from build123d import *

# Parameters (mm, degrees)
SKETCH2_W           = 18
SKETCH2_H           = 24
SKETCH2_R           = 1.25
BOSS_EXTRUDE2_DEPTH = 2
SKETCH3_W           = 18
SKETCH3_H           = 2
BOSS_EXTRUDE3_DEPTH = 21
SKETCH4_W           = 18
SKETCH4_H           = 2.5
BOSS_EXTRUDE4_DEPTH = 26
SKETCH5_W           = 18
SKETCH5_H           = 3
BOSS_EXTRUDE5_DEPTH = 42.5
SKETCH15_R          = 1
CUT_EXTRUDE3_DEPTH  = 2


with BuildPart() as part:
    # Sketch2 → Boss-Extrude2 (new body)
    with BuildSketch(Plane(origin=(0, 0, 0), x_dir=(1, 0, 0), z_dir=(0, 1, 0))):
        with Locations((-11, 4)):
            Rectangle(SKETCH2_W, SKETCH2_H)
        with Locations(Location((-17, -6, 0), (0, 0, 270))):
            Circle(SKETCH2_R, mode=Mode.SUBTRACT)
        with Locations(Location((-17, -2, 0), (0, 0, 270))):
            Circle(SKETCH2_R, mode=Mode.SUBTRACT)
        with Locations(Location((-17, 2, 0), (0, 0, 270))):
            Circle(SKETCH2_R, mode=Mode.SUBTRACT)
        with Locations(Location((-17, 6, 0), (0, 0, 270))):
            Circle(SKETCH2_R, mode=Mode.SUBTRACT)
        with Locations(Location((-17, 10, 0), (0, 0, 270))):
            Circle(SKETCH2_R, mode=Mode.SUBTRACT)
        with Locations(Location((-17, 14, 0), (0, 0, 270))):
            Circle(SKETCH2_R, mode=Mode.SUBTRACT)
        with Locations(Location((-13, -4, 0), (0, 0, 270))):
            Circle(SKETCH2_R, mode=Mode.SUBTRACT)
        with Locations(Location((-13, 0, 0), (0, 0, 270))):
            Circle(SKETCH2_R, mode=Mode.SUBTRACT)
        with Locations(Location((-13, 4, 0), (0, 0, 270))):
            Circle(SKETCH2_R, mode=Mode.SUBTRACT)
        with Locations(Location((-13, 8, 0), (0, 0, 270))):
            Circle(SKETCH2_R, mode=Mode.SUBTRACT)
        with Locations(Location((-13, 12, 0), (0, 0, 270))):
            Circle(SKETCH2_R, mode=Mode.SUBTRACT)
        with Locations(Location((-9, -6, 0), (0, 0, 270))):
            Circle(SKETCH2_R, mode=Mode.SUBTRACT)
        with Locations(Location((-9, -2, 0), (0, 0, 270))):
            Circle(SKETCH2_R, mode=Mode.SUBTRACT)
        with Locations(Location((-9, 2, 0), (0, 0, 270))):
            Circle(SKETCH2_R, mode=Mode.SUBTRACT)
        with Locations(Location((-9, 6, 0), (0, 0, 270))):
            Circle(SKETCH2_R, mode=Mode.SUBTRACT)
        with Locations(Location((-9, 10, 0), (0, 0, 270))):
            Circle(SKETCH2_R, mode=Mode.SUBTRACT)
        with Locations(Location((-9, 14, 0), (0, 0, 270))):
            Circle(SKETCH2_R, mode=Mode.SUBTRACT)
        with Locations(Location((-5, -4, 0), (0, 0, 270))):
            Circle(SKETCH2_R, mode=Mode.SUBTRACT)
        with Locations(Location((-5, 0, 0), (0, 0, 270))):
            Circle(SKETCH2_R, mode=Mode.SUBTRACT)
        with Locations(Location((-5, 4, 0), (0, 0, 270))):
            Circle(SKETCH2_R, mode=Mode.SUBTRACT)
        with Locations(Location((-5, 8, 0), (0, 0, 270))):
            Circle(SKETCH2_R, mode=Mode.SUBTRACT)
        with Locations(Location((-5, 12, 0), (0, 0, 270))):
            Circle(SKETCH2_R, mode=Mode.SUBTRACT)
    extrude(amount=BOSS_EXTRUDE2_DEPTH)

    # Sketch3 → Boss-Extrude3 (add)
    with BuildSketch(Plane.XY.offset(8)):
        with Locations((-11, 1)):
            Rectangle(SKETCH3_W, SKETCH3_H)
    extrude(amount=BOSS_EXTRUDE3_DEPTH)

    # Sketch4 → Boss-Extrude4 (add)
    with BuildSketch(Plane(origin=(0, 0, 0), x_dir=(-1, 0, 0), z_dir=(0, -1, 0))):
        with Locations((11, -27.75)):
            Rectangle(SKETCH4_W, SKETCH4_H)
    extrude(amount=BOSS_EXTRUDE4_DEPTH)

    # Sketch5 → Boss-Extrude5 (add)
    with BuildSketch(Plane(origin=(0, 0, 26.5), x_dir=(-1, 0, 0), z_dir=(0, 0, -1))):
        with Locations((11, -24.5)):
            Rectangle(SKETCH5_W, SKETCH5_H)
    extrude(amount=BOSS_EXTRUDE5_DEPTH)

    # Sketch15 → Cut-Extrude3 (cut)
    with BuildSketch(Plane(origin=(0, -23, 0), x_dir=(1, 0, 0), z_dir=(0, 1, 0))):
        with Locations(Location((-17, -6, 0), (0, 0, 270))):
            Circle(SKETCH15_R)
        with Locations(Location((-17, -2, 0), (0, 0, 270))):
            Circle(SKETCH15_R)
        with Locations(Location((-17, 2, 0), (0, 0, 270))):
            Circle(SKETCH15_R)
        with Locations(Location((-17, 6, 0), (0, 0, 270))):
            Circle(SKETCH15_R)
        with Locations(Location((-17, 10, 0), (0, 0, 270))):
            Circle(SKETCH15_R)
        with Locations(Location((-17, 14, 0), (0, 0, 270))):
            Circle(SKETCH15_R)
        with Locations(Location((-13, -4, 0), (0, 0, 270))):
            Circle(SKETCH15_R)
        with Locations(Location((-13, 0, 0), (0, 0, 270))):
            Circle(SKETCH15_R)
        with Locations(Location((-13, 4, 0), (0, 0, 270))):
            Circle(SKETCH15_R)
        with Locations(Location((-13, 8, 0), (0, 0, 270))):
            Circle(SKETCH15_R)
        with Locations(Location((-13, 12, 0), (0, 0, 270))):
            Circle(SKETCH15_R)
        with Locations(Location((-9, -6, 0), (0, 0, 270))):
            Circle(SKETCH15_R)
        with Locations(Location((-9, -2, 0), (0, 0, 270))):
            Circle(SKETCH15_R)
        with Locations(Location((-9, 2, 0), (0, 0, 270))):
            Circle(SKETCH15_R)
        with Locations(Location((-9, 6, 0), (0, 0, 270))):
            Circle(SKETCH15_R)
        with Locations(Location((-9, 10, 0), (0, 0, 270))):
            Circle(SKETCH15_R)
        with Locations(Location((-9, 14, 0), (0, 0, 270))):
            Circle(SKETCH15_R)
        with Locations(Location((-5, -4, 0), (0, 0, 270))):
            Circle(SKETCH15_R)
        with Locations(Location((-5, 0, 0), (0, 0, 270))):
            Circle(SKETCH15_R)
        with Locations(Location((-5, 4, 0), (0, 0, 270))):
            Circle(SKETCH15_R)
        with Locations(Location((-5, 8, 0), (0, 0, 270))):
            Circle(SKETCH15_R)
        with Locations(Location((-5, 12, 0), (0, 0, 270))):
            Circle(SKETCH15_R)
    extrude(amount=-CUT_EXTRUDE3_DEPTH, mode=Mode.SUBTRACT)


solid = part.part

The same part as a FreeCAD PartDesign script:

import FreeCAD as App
import Part
import Sketcher

V = App.Vector
Q = App.Units.Quantity

doc = App.newDocument("Part")
params = doc.addObject("Spreadsheet::Sheet", "Params")
for row, (alias, value) in enumerate([
    ("sketch1_diameter", "2.5 mm"),
    ("sketch1_width", "18 mm"),
    ("sketch1_height", "24 mm"),
    ("pad1_length", "2 mm"),
    ("sketch2_width", "18 mm"),
    ("sketch2_height", "2 mm"),
    ("pad2_length", "21 mm"),
    ("sketch3_width", "18 mm"),
    ("sketch3_height", "2.5 mm"),
    ("pad3_length", "26 mm"),
    ("sketch4_width", "18 mm"),
    ("sketch4_height", "3 mm"),
    ("pad4_length", "42.5 mm"),
    ("sketch5_diameter", "2 mm"),
    ("pocket1_length", "2 mm"),
], start=1):
    params.set(f"A{row}", alias)
    params.set(f"B{row}", "=" + value)
    params.setAlias(f"B{row}", alias)

body = doc.addObject("PartDesign::Body", "Body")

# Sketch on XZ plane
sketch1 = body.newObject("Sketcher::SketchObject", "Sketch")
sketch1.AttachmentSupport = (doc.getObject("XZ_Plane"), [""])
sketch1.MapMode = "FlatFace"
sketch1.addGeometry([
    Part.LineSegment(V(-20, -16, 0), V(-20, 8, 0)),  # 0
    Part.LineSegment(V(-20, 8, 0), V(-2, 8, 0)),  # 1
    Part.LineSegment(V(-2, 8, 0), V(-2, -16, 0)),  # 2
    Part.LineSegment(V(-2, -16, 0), V(-20, -16, 0)),  # 3
    Part.Circle(V(-17, 6, 0), V(0, 0, 1), 1.2),  # 4
    Part.Circle(V(-17, 2, 0), V(0, 0, 1), 1.2),  # 5
    Part.Circle(V(-13, 4, 0), V(0, 0, 1), 1.2),  # 6
    Part.Circle(V(-17, -2, 0), V(0, 0, 1), 1.2),  # 7
    Part.Circle(V(-13, 0, 0), V(0, 0, 1), 1.2),  # 8
    Part.Circle(V(-9, 6, 0), V(0, 0, 1), 1.2),  # 9
    Part.Circle(V(-9, 2, 0), V(0, 0, 1), 1.2),  # 10
    Part.Circle(V(-5, 4, 0), V(0, 0, 1), 1.2),  # 11
    Part.Circle(V(-9, -2, 0), V(0, 0, 1), 1.2),  # 12
    Part.Circle(V(-5, 0, 0), V(0, 0, 1), 1.2),  # 13
    Part.Circle(V(-17, -6, 0), V(0, 0, 1), 1.2),  # 14
    Part.Circle(V(-13, -4, 0), V(0, 0, 1), 1.2),  # 15
    Part.Circle(V(-13, -8, 0), V(0, 0, 1), 1.2),  # 16
    Part.Circle(V(-17, -10, 0), V(0, 0, 1), 1.2),  # 17
    Part.Circle(V(-17, -14, 0), V(0, 0, 1), 1.2),  # 18
    Part.Circle(V(-13, -12, 0), V(0, 0, 1), 1.2),  # 19
    Part.Circle(V(-9, -6, 0), V(0, 0, 1), 1.2),  # 20
    Part.Circle(V(-5, -4, 0), V(0, 0, 1), 1.2),  # 21
    Part.Circle(V(-5, -8, 0), V(0, 0, 1), 1.2),  # 22
    Part.Circle(V(-9, -10, 0), V(0, 0, 1), 1.2),  # 23
    Part.Circle(V(-9, -14, 0), V(0, 0, 1), 1.2),  # 24
    Part.Circle(V(-5, -12, 0), V(0, 0, 1), 1.2),  # 25
], False)
sketch1.addConstraint([
    Sketcher.Constraint("Coincident", 0, 2, 1, 1),
    Sketcher.Constraint("Coincident", 1, 2, 2, 1),
    Sketcher.Constraint("Coincident", 2, 2, 3, 1),
    Sketcher.Constraint("Coincident", 3, 2, 0, 1),
    Sketcher.Constraint("Vertical", 0),
    Sketcher.Constraint("Horizontal", 1),
    Sketcher.Constraint("Vertical", 2),
    Sketcher.Constraint("Horizontal", 3),
    Sketcher.Constraint("Equal", 4, 5),
    Sketcher.Constraint("Equal", 5, 6),
    Sketcher.Constraint("Equal", 6, 7),
    Sketcher.Constraint("Equal", 7, 8),
    Sketcher.Constraint("Equal", 8, 9),
    Sketcher.Constraint("Equal", 9, 10),
    Sketcher.Constraint("Equal", 10, 11),
    Sketcher.Constraint("Equal", 11, 12),
    Sketcher.Constraint("Equal", 12, 13),
    Sketcher.Constraint("Equal", 13, 14),
    Sketcher.Constraint("Equal", 14, 15),
    Sketcher.Constraint("Equal", 15, 16),
    Sketcher.Constraint("Equal", 16, 17),
    Sketcher.Constraint("Equal", 17, 18),
    Sketcher.Constraint("Equal", 18, 19),
    Sketcher.Constraint("Equal", 19, 20),
    Sketcher.Constraint("Equal", 20, 21),
    Sketcher.Constraint("Equal", 21, 22),
    Sketcher.Constraint("Equal", 22, 23),
    Sketcher.Constraint("Equal", 23, 24),
    Sketcher.Constraint("Equal", 24, 25),
    Sketcher.Constraint("Symmetric", 5, 3, 7, 3, -1),
    Sketcher.Constraint("Symmetric", 10, 3, 12, 3, -1),
    Sketcher.Constraint("Symmetric", 4, 3, 14, 3, -1),
    Sketcher.Constraint("Symmetric", 6, 3, 15, 3, -1),
    Sketcher.Constraint("Symmetric", 9, 3, 20, 3, -1),
    Sketcher.Constraint("Symmetric", 11, 3, 21, 3, -1),
    Sketcher.Constraint("PointOnObject", 8, 3, -1),
    Sketcher.Constraint("PointOnObject", 13, 3, -1),
    Sketcher.Constraint("Horizontal", 4, 3, 9, 3),
    Sketcher.Constraint("Horizontal", 5, 3, 10, 3),
    Sketcher.Constraint("Horizontal", 6, 3, 11, 3),
    Sketcher.Constraint("Horizontal", 16, 3, 22, 3),
    Sketcher.Constraint("Horizontal", 17, 3, 23, 3),
    Sketcher.Constraint("Horizontal", 18, 3, 24, 3),
    Sketcher.Constraint("Horizontal", 19, 3, 25, 3),
    Sketcher.Constraint("Vertical", 4, 3, 5, 3),
    Sketcher.Constraint("Vertical", 6, 3, 8, 3),
    Sketcher.Constraint("Vertical", 9, 3, 10, 3),
    Sketcher.Constraint("Vertical", 11, 3, 13, 3),
    Sketcher.Constraint("Vertical", 15, 3, 16, 3),
    Sketcher.Constraint("Vertical", 14, 3, 17, 3),
    Sketcher.Constraint("Vertical", 17, 3, 18, 3),
    Sketcher.Constraint("Vertical", 16, 3, 19, 3),
    Sketcher.Constraint("Vertical", 21, 3, 22, 3),
    Sketcher.Constraint("Vertical", 20, 3, 23, 3),
    Sketcher.Constraint("Vertical", 23, 3, 24, 3),
    Sketcher.Constraint("Vertical", 22, 3, 25, 3),
    Sketcher.Constraint("Diameter", 4, Q("2.5 mm")),
    Sketcher.Constraint("DistanceX", 1, 1, 1, 2, Q("18 mm")),
    Sketcher.Constraint("DistanceY", 0, 1, 0, 2, Q("24 mm")),
    Sketcher.Constraint("DistanceX", 4, 3, -1, 1, Q("17 mm")),
    Sketcher.Constraint("DistanceY", -1, 1, 4, 3, Q("6 mm")),
    Sketcher.Constraint("DistanceY", -1, 1, 5, 3, Q("2 mm")),
    Sketcher.Constraint("DistanceX", 6, 3, -1, 1, Q("13 mm")),
    Sketcher.Constraint("DistanceY", -1, 1, 6, 3, Q("4 mm")),
    Sketcher.Constraint("DistanceX", 9, 3, -1, 1, Q("9 mm")),
    Sketcher.Constraint("DistanceX", 11, 3, -1, 1, Q("5 mm")),
    Sketcher.Constraint("DistanceY", 16, 3, -1, 1, Q("8 mm")),
    Sketcher.Constraint("DistanceY", 17, 3, -1, 1, Q("10 mm")),
    Sketcher.Constraint("DistanceY", 18, 3, -1, 1, Q("14 mm")),
    Sketcher.Constraint("DistanceY", 19, 3, -1, 1, Q("12 mm")),
    Sketcher.Constraint("DistanceX", 0, 2, -1, 1, Q("20 mm")),
    Sketcher.Constraint("DistanceY", -1, 1, 0, 2, Q("8 mm")),
])
sketch1.setExpression("Constraints[56]", "Params.sketch1_diameter")
sketch1.setExpression("Constraints[57]", "Params.sketch1_width")
sketch1.setExpression("Constraints[58]", "Params.sketch1_height")
pad1 = body.newObject("PartDesign::Pad", "Pad")
pad1.Profile = sketch1
pad1.setExpression("Length", "Params.pad1_length")
pad1.Reversed = True

# Sketch on XY plane
sketch2 = body.newObject("Sketcher::SketchObject", "Sketch001")
sketch2.AttachmentSupport = (doc.getObject("XY_Plane"), [""])
sketch2.MapMode = "FlatFace"
sketch2.AttachmentOffset = App.Placement(V(0, 0, 8), App.Rotation())
sketch2.addGeometry([
    Part.LineSegment(V(-20, 2, 0), V(-20, 0, 0)),
    Part.LineSegment(V(-20, 0, 0), V(-2, 0, 0)),
    Part.LineSegment(V(-2, 0, 0), V(-2, 2, 0)),
    Part.LineSegment(V(-2, 2, 0), V(-20, 2, 0)),
], False)
sketch2.addConstraint([
    Sketcher.Constraint("Coincident", 0, 2, 1, 1),
    Sketcher.Constraint("Coincident", 1, 2, 2, 1),
    Sketcher.Constraint("Coincident", 2, 2, 3, 1),
    Sketcher.Constraint("Coincident", 3, 2, 0, 1),
    Sketcher.Constraint("Vertical", 0),
    Sketcher.Constraint("Horizontal", 1),
    Sketcher.Constraint("Vertical", 2),
    Sketcher.Constraint("Horizontal", 3),
    Sketcher.Constraint("PointOnObject", 0, 2, -1),
    Sketcher.Constraint("DistanceX", 1, 1, 1, 2, Q("18 mm")),
    Sketcher.Constraint("DistanceY", 0, 2, 0, 1, Q("2 mm")),
    Sketcher.Constraint("DistanceX", 0, 2, -1, 1, Q("20 mm")),
])
sketch2.setExpression("Constraints[9]", "Params.sketch2_width")
sketch2.setExpression("Constraints[10]", "Params.sketch2_height")
pad2 = body.newObject("PartDesign::Pad", "Pad001")
pad2.Profile = sketch2
pad2.setExpression("Length", "Params.pad2_length")

# Sketch on XZ plane
sketch3 = body.newObject("Sketcher::SketchObject", "Sketch002")
sketch3.AttachmentSupport = (doc.getObject("XZ_Plane"), [""])
sketch3.MapMode = "FlatFace"
sketch3.addGeometry([
    Part.LineSegment(V(-2, 26.5, 0), V(-2, 29, 0)),
    Part.LineSegment(V(-2, 29, 0), V(-20, 29, 0)),
    Part.LineSegment(V(-20, 29, 0), V(-20, 26.5, 0)),
    Part.LineSegment(V(-20, 26.5, 0), V(-2, 26.5, 0)),
], False)
sketch3.addConstraint([
    Sketcher.Constraint("Coincident", 0, 2, 1, 1),
    Sketcher.Constraint("Coincident", 1, 2, 2, 1),
    Sketcher.Constraint("Coincident", 2, 2, 3, 1),
    Sketcher.Constraint("Coincident", 3, 2, 0, 1),
    Sketcher.Constraint("Vertical", 0),
    Sketcher.Constraint("Horizontal", 1),
    Sketcher.Constraint("Vertical", 2),
    Sketcher.Constraint("Horizontal", 3),
    Sketcher.Constraint("DistanceX", 1, 2, 1, 1, Q("18 mm")),
    Sketcher.Constraint("DistanceY", 0, 1, 0, 2, Q("2.5 mm")),
    Sketcher.Constraint("DistanceX", 0, 2, -1, 1, Q("2 mm")),
    Sketcher.Constraint("DistanceY", -1, 1, 0, 2, Q("29 mm")),
])
sketch3.setExpression("Constraints[8]", "Params.sketch3_width")
sketch3.setExpression("Constraints[9]", "Params.sketch3_height")
pad3 = body.newObject("PartDesign::Pad", "Pad002")
pad3.Profile = sketch3
pad3.setExpression("Length", "Params.pad3_length")

# Sketch on XY plane
sketch4 = body.newObject("Sketcher::SketchObject", "Sketch003")
sketch4.AttachmentSupport = (doc.getObject("XY_Plane"), [""])
sketch4.MapMode = "FlatFace"
sketch4.AttachmentOffset = App.Placement(V(0, 0, 26.5), App.Rotation())
sketch4.addGeometry([
    Part.LineSegment(V(-2, -23, 0), V(-2, -26, 0)),
    Part.LineSegment(V(-2, -26, 0), V(-20, -26, 0)),
    Part.LineSegment(V(-20, -26, 0), V(-20, -23, 0)),
    Part.LineSegment(V(-20, -23, 0), V(-2, -23, 0)),
], False)
sketch4.addConstraint([
    Sketcher.Constraint("Coincident", 0, 2, 1, 1),
    Sketcher.Constraint("Coincident", 1, 2, 2, 1),
    Sketcher.Constraint("Coincident", 2, 2, 3, 1),
    Sketcher.Constraint("Coincident", 3, 2, 0, 1),
    Sketcher.Constraint("Vertical", 0),
    Sketcher.Constraint("Horizontal", 1),
    Sketcher.Constraint("Vertical", 2),
    Sketcher.Constraint("Horizontal", 3),
    Sketcher.Constraint("DistanceX", 1, 2, 1, 1, Q("18 mm")),
    Sketcher.Constraint("DistanceY", 0, 2, 0, 1, Q("3 mm")),
    Sketcher.Constraint("DistanceX", 0, 2, -1, 1, Q("2 mm")),
    Sketcher.Constraint("DistanceY", 0, 2, -1, 1, Q("26 mm")),
])
sketch4.setExpression("Constraints[8]", "Params.sketch4_width")
sketch4.setExpression("Constraints[9]", "Params.sketch4_height")
pad4 = body.newObject("PartDesign::Pad", "Pad003")
pad4.Profile = sketch4
pad4.setExpression("Length", "Params.pad4_length")
pad4.Reversed = True

# Sketch on XZ plane
sketch5 = body.newObject("Sketcher::SketchObject", "Sketch004")
sketch5.AttachmentSupport = (doc.getObject("XZ_Plane"), [""])
sketch5.MapMode = "FlatFace"
sketch5.AttachmentOffset = App.Placement(V(0, 0, 23), App.Rotation())
sketch5.addGeometry([
    Part.Circle(V(-17, 6, 0), V(0, 0, 1), 1),  # 0
    Part.Circle(V(-17, 2, 0), V(0, 0, 1), 1),  # 1
    Part.Circle(V(-17, -2, 0), V(0, 0, 1), 1),  # 2
    Part.Circle(V(-17, -6, 0), V(0, 0, 1), 1),  # 3
    Part.Circle(V(-17, -10, 0), V(0, 0, 1), 1),  # 4
    Part.Circle(V(-17, -14, 0), V(0, 0, 1), 1),  # 5
    Part.Circle(V(-13, 4, 0), V(0, 0, 1), 1),  # 6
    Part.Circle(V(-13, 0, 0), V(0, 0, 1), 1),  # 7
    Part.Circle(V(-13, -4, 0), V(0, 0, 1), 1),  # 8
    Part.Circle(V(-13, -8, 0), V(0, 0, 1), 1),  # 9
    Part.Circle(V(-13, -12, 0), V(0, 0, 1), 1),  # 10
    Part.Circle(V(-9, 6, 0), V(0, 0, 1), 1),  # 11
    Part.Circle(V(-9, 2, 0), V(0, 0, 1), 1),  # 12
    Part.Circle(V(-9, -2, 0), V(0, 0, 1), 1),  # 13
    Part.Circle(V(-9, -6, 0), V(0, 0, 1), 1),  # 14
    Part.Circle(V(-9, -10, 0), V(0, 0, 1), 1),  # 15
    Part.Circle(V(-9, -14, 0), V(0, 0, 1), 1),  # 16
    Part.Circle(V(-5, 4, 0), V(0, 0, 1), 1),  # 17
    Part.Circle(V(-5, 0, 0), V(0, 0, 1), 1),  # 18
    Part.Circle(V(-5, -4, 0), V(0, 0, 1), 1),  # 19
    Part.Circle(V(-5, -8, 0), V(0, 0, 1), 1),  # 20
    Part.Circle(V(-5, -12, 0), V(0, 0, 1), 1),  # 21
], False)
sketch5.addConstraint([
    Sketcher.Constraint("Equal", 0, 1),
    Sketcher.Constraint("Equal", 1, 2),
    Sketcher.Constraint("Equal", 2, 3),
    Sketcher.Constraint("Equal", 3, 4),
    Sketcher.Constraint("Equal", 4, 5),
    Sketcher.Constraint("Equal", 5, 6),
    Sketcher.Constraint("Equal", 6, 7),
    Sketcher.Constraint("Equal", 7, 8),
    Sketcher.Constraint("Equal", 8, 9),
    Sketcher.Constraint("Equal", 9, 10),
    Sketcher.Constraint("Equal", 10, 11),
    Sketcher.Constraint("Equal", 11, 12),
    Sketcher.Constraint("Equal", 12, 13),
    Sketcher.Constraint("Equal", 13, 14),
    Sketcher.Constraint("Equal", 14, 15),
    Sketcher.Constraint("Equal", 15, 16),
    Sketcher.Constraint("Equal", 16, 17),
    Sketcher.Constraint("Equal", 17, 18),
    Sketcher.Constraint("Equal", 18, 19),
    Sketcher.Constraint("Equal", 19, 20),
    Sketcher.Constraint("Equal", 20, 21),
    Sketcher.Constraint("Symmetric", 1, 3, 2, 3, -1),
    Sketcher.Constraint("Symmetric", 0, 3, 3, 3, -1),
    Sketcher.Constraint("Symmetric", 6, 3, 8, 3, -1),
    Sketcher.Constraint("Symmetric", 12, 3, 13, 3, -1),
    Sketcher.Constraint("Symmetric", 11, 3, 14, 3, -1),
    Sketcher.Constraint("Symmetric", 17, 3, 19, 3, -1),
    Sketcher.Constraint("PointOnObject", 7, 3, -1),
    Sketcher.Constraint("PointOnObject", 18, 3, -1),
    Sketcher.Constraint("Horizontal", 0, 3, 11, 3),
    Sketcher.Constraint("Horizontal", 1, 3, 12, 3),
    Sketcher.Constraint("Horizontal", 4, 3, 15, 3),
    Sketcher.Constraint("Horizontal", 5, 3, 16, 3),
    Sketcher.Constraint("Horizontal", 6, 3, 17, 3),
    Sketcher.Constraint("Horizontal", 9, 3, 20, 3),
    Sketcher.Constraint("Horizontal", 10, 3, 21, 3),
    Sketcher.Constraint("Vertical", 0, 3, 1, 3),
    Sketcher.Constraint("Vertical", 3, 3, 4, 3),
    Sketcher.Constraint("Vertical", 4, 3, 5, 3),
    Sketcher.Constraint("Vertical", 6, 3, 7, 3),
    Sketcher.Constraint("Vertical", 8, 3, 9, 3),
    Sketcher.Constraint("Vertical", 9, 3, 10, 3),
    Sketcher.Constraint("Vertical", 11, 3, 12, 3),
    Sketcher.Constraint("Vertical", 14, 3, 15, 3),
    Sketcher.Constraint("Vertical", 15, 3, 16, 3),
    Sketcher.Constraint("Vertical", 17, 3, 18, 3),
    Sketcher.Constraint("Vertical", 19, 3, 20, 3),
    Sketcher.Constraint("Vertical", 20, 3, 21, 3),
    Sketcher.Constraint("Diameter", 0, Q("2 mm")),
    Sketcher.Constraint("DistanceX", 0, 3, -1, 1, Q("17 mm")),
    Sketcher.Constraint("DistanceY", -1, 1, 0, 3, Q("6 mm")),
    Sketcher.Constraint("DistanceY", -1, 1, 1, 3, Q("2 mm")),
    Sketcher.Constraint("DistanceY", 4, 3, -1, 1, Q("10 mm")),
    Sketcher.Constraint("DistanceY", 5, 3, -1, 1, Q("14 mm")),
    Sketcher.Constraint("DistanceX", 6, 3, -1, 1, Q("13 mm")),
    Sketcher.Constraint("DistanceY", -1, 1, 6, 3, Q("4 mm")),
    Sketcher.Constraint("DistanceY", 9, 3, -1, 1, Q("8 mm")),
    Sketcher.Constraint("DistanceY", 10, 3, -1, 1, Q("12 mm")),
    Sketcher.Constraint("DistanceX", 11, 3, -1, 1, Q("9 mm")),
    Sketcher.Constraint("DistanceX", 17, 3, -1, 1, Q("5 mm")),
])
sketch5.setExpression("Constraints[48]", "Params.sketch5_diameter")
pocket1 = body.newObject("PartDesign::Pocket", "Pocket")
pocket1.Profile = sketch5
pocket1.setExpression("Length", "Params.pocket1_length")
pocket1.Reversed = True

doc.recompute()
